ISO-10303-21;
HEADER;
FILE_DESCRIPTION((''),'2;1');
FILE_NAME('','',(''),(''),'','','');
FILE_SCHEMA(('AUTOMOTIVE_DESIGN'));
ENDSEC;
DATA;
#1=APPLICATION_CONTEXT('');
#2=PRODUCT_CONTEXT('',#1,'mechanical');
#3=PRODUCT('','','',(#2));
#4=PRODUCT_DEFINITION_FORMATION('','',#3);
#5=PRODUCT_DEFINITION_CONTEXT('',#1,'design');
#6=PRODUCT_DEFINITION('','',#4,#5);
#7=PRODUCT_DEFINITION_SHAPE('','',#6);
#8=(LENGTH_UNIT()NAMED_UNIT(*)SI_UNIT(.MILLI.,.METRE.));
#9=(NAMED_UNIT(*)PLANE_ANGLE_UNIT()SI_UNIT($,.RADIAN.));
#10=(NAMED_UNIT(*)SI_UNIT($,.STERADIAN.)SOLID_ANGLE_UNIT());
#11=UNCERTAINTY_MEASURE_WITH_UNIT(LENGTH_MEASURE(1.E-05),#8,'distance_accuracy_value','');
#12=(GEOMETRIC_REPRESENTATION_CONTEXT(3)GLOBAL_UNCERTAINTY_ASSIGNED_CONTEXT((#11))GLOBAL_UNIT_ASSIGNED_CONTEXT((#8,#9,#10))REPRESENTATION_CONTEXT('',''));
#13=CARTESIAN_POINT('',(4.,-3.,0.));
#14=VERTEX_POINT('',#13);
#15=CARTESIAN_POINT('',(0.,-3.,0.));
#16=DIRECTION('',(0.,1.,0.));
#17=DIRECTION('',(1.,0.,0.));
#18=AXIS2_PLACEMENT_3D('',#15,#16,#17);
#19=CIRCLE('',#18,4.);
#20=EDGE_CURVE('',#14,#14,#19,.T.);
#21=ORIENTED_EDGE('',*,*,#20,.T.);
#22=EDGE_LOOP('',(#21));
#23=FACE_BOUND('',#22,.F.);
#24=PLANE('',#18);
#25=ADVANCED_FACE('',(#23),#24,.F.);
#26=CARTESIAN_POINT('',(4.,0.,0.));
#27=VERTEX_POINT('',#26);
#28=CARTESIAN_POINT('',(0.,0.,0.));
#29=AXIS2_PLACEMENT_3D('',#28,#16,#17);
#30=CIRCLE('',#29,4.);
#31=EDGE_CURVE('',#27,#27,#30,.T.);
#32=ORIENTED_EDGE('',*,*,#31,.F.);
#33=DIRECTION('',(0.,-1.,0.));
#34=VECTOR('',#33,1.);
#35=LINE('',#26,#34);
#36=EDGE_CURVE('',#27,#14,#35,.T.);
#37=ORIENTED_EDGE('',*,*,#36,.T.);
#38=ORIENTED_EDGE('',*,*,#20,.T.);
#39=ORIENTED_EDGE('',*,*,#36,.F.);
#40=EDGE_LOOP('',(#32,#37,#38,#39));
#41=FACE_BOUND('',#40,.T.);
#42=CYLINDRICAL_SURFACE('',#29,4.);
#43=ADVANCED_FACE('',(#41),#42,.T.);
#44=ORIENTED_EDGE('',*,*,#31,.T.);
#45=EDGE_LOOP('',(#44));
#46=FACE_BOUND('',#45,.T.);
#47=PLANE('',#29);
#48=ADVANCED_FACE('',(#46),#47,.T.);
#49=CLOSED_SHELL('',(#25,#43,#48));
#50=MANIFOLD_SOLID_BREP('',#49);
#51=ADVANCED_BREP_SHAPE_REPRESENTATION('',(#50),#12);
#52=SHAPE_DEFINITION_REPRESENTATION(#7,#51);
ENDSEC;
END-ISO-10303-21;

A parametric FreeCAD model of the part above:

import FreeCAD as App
import Part
import Sketcher

V = App.Vector

doc = App.newDocument("Part")
body = doc.addObject("PartDesign::Body", "Body")

sketch1 = body.newObject("Sketcher::SketchObject", "Sketch")
sketch1.AttachmentSupport = (doc.getObject("XZ_Plane"), [""])
sketch1.MapMode = "FlatFace"
sketch1.addGeometry(Part.Circle(V(0, 0, 0), V(0, 0, 1), 4), False)
sketch1.addConstraint(Sketcher.Constraint("Coincident", 0, 3, -1, 1))
sketch1.addConstraint(Sketcher.Constraint("Diameter", 0, 8.0))
pad1 = body.newObject("PartDesign::Pad", "Pad")
pad1.Profile = sketch1
pad1.Length = 3

doc.recompute()
